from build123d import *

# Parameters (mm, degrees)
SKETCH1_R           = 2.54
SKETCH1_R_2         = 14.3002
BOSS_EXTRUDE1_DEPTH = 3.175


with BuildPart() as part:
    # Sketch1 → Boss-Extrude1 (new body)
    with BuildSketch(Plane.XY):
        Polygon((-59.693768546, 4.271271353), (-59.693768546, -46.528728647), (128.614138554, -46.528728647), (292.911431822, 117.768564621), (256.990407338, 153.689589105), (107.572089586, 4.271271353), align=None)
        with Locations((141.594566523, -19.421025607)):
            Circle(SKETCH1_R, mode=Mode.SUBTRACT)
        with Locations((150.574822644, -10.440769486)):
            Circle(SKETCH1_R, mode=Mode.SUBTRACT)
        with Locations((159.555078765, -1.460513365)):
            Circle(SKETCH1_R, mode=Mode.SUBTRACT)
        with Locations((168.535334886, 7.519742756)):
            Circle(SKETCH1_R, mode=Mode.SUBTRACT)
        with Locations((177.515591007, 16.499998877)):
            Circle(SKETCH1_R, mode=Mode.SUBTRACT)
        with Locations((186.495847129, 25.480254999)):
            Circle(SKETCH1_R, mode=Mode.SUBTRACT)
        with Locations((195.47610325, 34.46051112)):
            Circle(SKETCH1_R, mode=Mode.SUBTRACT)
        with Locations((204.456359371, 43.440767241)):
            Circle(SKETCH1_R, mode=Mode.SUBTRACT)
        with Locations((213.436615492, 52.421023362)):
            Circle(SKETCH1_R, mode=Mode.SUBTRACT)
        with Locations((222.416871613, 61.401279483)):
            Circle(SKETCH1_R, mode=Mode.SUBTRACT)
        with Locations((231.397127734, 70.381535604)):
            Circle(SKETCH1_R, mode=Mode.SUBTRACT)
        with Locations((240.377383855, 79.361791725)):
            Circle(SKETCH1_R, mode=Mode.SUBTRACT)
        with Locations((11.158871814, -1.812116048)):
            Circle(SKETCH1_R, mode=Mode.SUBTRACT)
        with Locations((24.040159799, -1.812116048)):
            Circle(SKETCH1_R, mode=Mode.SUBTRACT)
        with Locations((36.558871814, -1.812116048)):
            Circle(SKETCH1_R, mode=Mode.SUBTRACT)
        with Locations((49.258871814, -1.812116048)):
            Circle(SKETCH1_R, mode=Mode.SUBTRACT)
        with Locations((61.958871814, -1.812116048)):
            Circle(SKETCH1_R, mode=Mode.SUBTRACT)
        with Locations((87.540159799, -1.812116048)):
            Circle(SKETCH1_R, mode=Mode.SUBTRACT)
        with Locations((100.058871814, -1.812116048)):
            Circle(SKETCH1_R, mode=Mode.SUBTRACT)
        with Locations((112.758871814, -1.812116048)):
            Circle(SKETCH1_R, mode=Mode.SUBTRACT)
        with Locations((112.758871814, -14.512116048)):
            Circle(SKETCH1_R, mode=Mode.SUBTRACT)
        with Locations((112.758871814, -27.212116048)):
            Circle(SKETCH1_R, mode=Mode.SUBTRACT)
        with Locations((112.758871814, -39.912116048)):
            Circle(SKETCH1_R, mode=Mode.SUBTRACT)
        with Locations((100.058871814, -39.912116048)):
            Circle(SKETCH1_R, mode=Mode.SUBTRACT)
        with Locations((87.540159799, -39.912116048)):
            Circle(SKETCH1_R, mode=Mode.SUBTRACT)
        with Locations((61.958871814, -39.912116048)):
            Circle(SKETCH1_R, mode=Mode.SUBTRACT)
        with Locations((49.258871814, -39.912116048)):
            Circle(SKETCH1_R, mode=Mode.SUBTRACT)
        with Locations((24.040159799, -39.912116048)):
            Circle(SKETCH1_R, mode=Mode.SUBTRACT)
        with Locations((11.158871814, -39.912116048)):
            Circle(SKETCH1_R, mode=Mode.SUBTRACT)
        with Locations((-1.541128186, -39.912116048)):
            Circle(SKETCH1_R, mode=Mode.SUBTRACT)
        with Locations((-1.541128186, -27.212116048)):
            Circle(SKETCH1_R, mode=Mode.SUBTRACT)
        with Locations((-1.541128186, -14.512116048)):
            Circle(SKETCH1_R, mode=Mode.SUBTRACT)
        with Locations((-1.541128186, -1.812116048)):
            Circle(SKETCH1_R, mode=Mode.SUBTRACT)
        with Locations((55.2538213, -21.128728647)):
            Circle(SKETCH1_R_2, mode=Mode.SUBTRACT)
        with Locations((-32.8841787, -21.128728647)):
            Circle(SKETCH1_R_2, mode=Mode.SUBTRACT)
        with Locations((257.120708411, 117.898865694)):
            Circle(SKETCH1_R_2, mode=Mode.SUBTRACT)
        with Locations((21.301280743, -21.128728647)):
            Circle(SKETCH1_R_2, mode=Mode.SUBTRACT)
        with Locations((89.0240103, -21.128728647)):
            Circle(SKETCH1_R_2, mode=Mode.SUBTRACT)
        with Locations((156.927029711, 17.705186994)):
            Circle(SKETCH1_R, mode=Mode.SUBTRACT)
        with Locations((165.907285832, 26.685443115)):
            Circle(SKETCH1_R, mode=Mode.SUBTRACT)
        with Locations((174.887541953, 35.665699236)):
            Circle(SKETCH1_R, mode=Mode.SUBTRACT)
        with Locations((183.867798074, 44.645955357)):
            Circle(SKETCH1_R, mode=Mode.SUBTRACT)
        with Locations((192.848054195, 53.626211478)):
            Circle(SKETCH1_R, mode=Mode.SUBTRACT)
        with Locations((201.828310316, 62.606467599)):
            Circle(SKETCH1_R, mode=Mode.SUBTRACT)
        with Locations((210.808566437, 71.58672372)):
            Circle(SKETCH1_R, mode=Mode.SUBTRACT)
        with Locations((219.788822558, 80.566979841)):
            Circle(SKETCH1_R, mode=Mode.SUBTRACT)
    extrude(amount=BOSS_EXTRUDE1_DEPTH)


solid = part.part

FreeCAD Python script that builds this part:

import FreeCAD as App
import Part
import Sketcher

V = App.Vector
Q = App.Units.Quantity

doc = App.newDocument("Part")
body = doc.addObject("PartDesign::Body", "Body")

sketch1 = doc.addObject("Sketcher::SketchObject", "Sketch")
body.addObject(sketch1)
sketch1.AttachmentSupport = (doc.XY_Plane, [""])
sketch1.MapMode = "FlatFace"
sketch1.addGeometry(Part.LineSegment(V(-59.7, 4.3, 0), V(-59.7, -46.5, 0)), False)
sketch1.addGeometry(Part.LineSegment(V(-59.7, -46.5, 0), V(128.6, -46.5, 0)), False)
sketch1.addGeometry(Part.LineSegment(V(128.6, -46.5, 0), V(292.9, 117.8, 0)), False)
sketch1.addGeometry(Part.LineSegment(V(292.9, 117.8, 0), V(257, 153.7, 0)), False)
sketch1.addGeometry(Part.LineSegment(V(257, 153.7, 0), V(107.6, 4.3, 0)), False)
sketch1.addGeometry(Part.LineSegment(V(107.6, 4.3, 0), V(-59.7, 4.3, 0)), False)
sketch1.addGeometry(Part.Circle(V(-32.9, -21.1, 0), V(0, 0, 1), 14.3), False)
sketch1.addGeometry(Part.Circle(V(-1.5, -39.9, 0), V(0, 0, 1), 2.5), False)
sketch1.addGeometry(Part.Circle(V(11.2, -39.9, 0), V(0, 0, 1), 2.5), False)
sketch1.addGeometry(Part.Circle(V(24, -39.9, 0), V(0, 0, 1), 2.5), False)
sketch1.addGeometry(Part.Circle(V(-1.5, -27.2, 0), V(0, 0, 1), 2.5), False)
sketch1.addGeometry(Part.Circle(V(21.3, -21.1, 0), V(0, 0, 1), 14.3), False)
sketch1.addGeometry(Part.Circle(V(-1.5, -14.5, 0), V(0, 0, 1), 2.5), False)
sketch1.addGeometry(Part.Circle(V(-1.5, -1.8, 0), V(0, 0, 1), 2.5), False)
sketch1.addGeometry(Part.Circle(V(11.2, -1.8, 0), V(0, 0, 1), 2.5), False)
sketch1.addGeometry(Part.Circle(V(24, -1.8, 0), V(0, 0, 1), 2.5), False)
sketch1.addGeometry(Part.Circle(V(49.3, -39.9, 0), V(0, 0, 1), 2.5), False)
sketch1.addGeometry(Part.Circle(V(62, -39.9, 0), V(0, 0, 1), 2.5), False)
sketch1.addGeometry(Part.Circle(V(55.3, -21.1, 0), V(0, 0, 1), 14.3), False)
sketch1.addGeometry(Part.Circle(V(87.5, -39.9, 0), V(0, 0, 1), 2.5), False)
sketch1.addGeometry(Part.Circle(V(100.1, -39.9, 0), V(0, 0, 1), 2.5), False)
sketch1.addGeometry(Part.Circle(V(89, -21.1, 0), V(0, 0, 1), 14.3), False)
sketch1.addGeometry(Part.Circle(V(36.6, -1.8, 0), V(0, 0, 1), 2.5), False)
sketch1.addGeometry(Part.Circle(V(49.3, -1.8, 0), V(0, 0, 1), 2.5), False)
sketch1.addGeometry(Part.Circle(V(62, -1.8, 0), V(0, 0, 1), 2.5), False)
sketch1.addGeometry(Part.Circle(V(87.5, -1.8, 0), V(0, 0, 1), 2.5), False)
sketch1.addGeometry(Part.Circle(V(100.1, -1.8, 0), V(0, 0, 1), 2.5), False)
sketch1.addGeometry(Part.Circle(V(112.8, -39.9, 0), V(0, 0, 1), 2.5), False)
sketch1.addGeometry(Part.Circle(V(112.8, -27.2, 0), V(0, 0, 1), 2.5), False)
sketch1.addGeometry(Part.Circle(V(112.8, -14.5, 0), V(0, 0, 1), 2.5), False)
sketch1.addGeometry(Part.Circle(V(141.6, -19.4, 0), V(0, 0, 1), 2.5), False)
sketch1.addGeometry(Part.Circle(V(150.6, -10.4, 0), V(0, 0, 1), 2.5), False)
sketch1.addGeometry(Part.Circle(V(112.8, -1.8, 0), V(0, 0, 1), 2.5), False)
sketch1.addGeometry(Part.Circle(V(159.6, -1.5, 0), V(0, 0, 1), 2.5), False)
sketch1.addGeometry(Part.Circle(V(168.5, 7.5, 0), V(0, 0, 1), 2.5), False)
sketch1.addGeometry(Part.Circle(V(156.9, 17.7, 0), V(0, 0, 1), 2.5), False)
sketch1.addGeometry(Part.Circle(V(177.5, 16.5, 0), V(0, 0, 1), 2.5), False)
sketch1.addGeometry(Part.Circle(V(165.9, 26.7, 0), V(0, 0, 1), 2.5), False)
sketch1.addGeometry(Part.Circle(V(186.5, 25.5, 0), V(0, 0, 1), 2.5), False)
sketch1.addGeometry(Part.Circle(V(174.9, 35.7, 0), V(0, 0, 1), 2.5), False)
sketch1.addGeometry(Part.Circle(V(183.9, 44.6, 0), V(0, 0, 1), 2.5), False)
sketch1.addGeometry(Part.Circle(V(195.5, 34.5, 0), V(0, 0, 1), 2.5), False)
sketch1.addGeometry(Part.Circle(V(204.5, 43.4, 0), V(0, 0, 1), 2.5), False)
sketch1.addGeometry(Part.Circle(V(192.8, 53.6, 0), V(0, 0, 1), 2.5), False)
sketch1.addGeometry(Part.Circle(V(213.4, 52.4, 0), V(0, 0, 1), 2.5), False)
sketch1.addGeometry(Part.Circle(V(201.8, 62.6, 0), V(0, 0, 1), 2.5), False)
sketch1.addGeometry(Part.Circle(V(222.4, 61.4, 0), V(0, 0, 1), 2.5), False)
sketch1.addGeometry(Part.Circle(V(210.8, 71.6, 0), V(0, 0, 1), 2.5), False)
sketch1.addGeometry(Part.Circle(V(231.4, 70.4, 0), V(0, 0, 1), 2.5), False)
sketch1.addGeometry(Part.Circle(V(219.8, 80.6, 0), V(0, 0, 1), 2.5), False)
sketch1.addGeometry(Part.Circle(V(240.4, 79.4, 0), V(0, 0, 1), 2.5), False)
sketch1.addGeometry(Part.Circle(V(257.1, 117.9, 0), V(0, 0, 1), 14.3), False)
sketch1.addConstraint(Sketcher.Constraint("Coincident", 0, 2, 1, 1))
sketch1.addConstraint(Sketcher.Constraint("Coincident", 1, 2, 2, 1))
sketch1.addConstraint(Sketcher.Constraint("Coincident", 2, 2, 3, 1))
sketch1.addConstraint(Sketcher.Constraint("Coincident", 3, 2, 4, 1))
sketch1.addConstraint(Sketcher.Constraint("Coincident", 4, 2, 5, 1))
sketch1.addConstraint(Sketcher.Constraint("Coincident", 5, 2, 0, 1))
sketch1.addConstraint(Sketcher.Constraint("Vertical", 0))
sketch1.addConstraint(Sketcher.Constraint("Horizontal", 1))
sketch1.addConstraint(Sketcher.Constraint("Horizontal", 5))
sketch1.addConstraint(Sketcher.Constraint("Equal", 7, 8))
sketch1.addConstraint(Sketcher.Constraint("Equal", 8, 9))
sketch1.addConstraint(Sketcher.Constraint("Equal", 9, 10))
sketch1.addConstraint(Sketcher.Constraint("Equal", 6, 11))
sketch1.addConstraint(Sketcher.Constraint("Equal", 10, 12))
sketch1.addConstraint(Sketcher.Constraint("Equal", 12, 13))
sketch1.addConstraint(Sketcher.Constraint("Equal", 13, 14))
sketch1.addConstraint(Sketcher.Constraint("Equal", 14, 15))
sketch1.addConstraint(Sketcher.Constraint("Equal", 15, 16))
sketch1.addConstraint(Sketcher.Constraint("Equal", 16, 17))
sketch1.addConstraint(Sketcher.Constraint("Equal", 11, 18))
sketch1.addConstraint(Sketcher.Constraint("Equal", 17, 19))
sketch1.addConstraint(Sketcher.Constraint("Equal", 19, 20))
sketch1.addConstraint(Sketcher.Constraint("Equal", 18, 21))
sketch1.addConstraint(Sketcher.Constraint("Equal", 20, 22))
sketch1.addConstraint(Sketcher.Constraint("Equal", 22, 23))
sketch1.addConstraint(Sketcher.Constraint("Equal", 23, 24))
sketch1.addConstraint(Sketcher.Constraint("Equal", 24, 25))
sketch1.addConstraint(Sketcher.Constraint("Equal", 25, 26))
sketch1.addConstraint(Sketcher.Constraint("Equal", 26, 27))
sketch1.addConstraint(Sketcher.Constraint("Equal", 27, 28))
sketch1.addConstraint(Sketcher.Constraint("Equal", 28, 29))
sketch1.addConstraint(Sketcher.Constraint("Equal", 29, 30))
sketch1.addConstraint(Sketcher.Constraint("Equal", 30, 31))
sketch1.addConstraint(Sketcher.Constraint("Equal", 31, 32))
sketch1.addConstraint(Sketcher.Constraint("Equal", 32, 33))
sketch1.addConstraint(Sketcher.Constraint("Equal", 33, 34))
sketch1.addConstraint(Sketcher.Constraint("Equal", 34, 35))
sketch1.addConstraint(Sketcher.Constraint("Equal", 35, 36))
sketch1.addConstraint(Sketcher.Constraint("Equal", 36, 37))
sketch1.addConstraint(Sketcher.Constraint("Equal", 37, 38))
sketch1.addConstraint(Sketcher.Constraint("Equal", 38, 39))
sketch1.addConstraint(Sketcher.Constraint("Equal", 39, 40))
sketch1.addConstraint(Sketcher.Constraint("Equal", 40, 41))
sketch1.addConstraint(Sketcher.Constraint("Equal", 41, 42))
sketch1.addConstraint(Sketcher.Constraint("Equal", 42, 43))
sketch1.addConstraint(Sketcher.Constraint("Equal", 43, 44))
sketch1.addConstraint(Sketcher.Constraint("Equal", 44, 45))
sketch1.addConstraint(Sketcher.Constraint("Equal", 45, 46))
sketch1.addConstraint(Sketcher.Constraint("Equal", 46, 47))
sketch1.addConstraint(Sketcher.Constraint("Equal", 47, 48))
sketch1.addConstraint(Sketcher.Constraint("Equal", 48, 49))
sketch1.addConstraint(Sketcher.Constraint("Equal", 49, 50))
sketch1.addConstraint(Sketcher.Constraint("Equal", 21, 51))
sketch1.addConstraint(Sketcher.Constraint("Perpendicular", 2, 3))
sketch1.addConstraint(Sketcher.Constraint("Perpendicular", 3, 4))
sketch1.addConstraint(Sketcher.Constraint("Horizontal", 7, 3, 8, 3))
sketch1.addConstraint(Sketcher.Constraint("Horizontal", 8, 3, 9, 3))
sketch1.addConstraint(Sketcher.Constraint("Horizontal", 6, 3, 11, 3))
sketch1.addConstraint(Sketcher.Constraint("Horizontal", 13, 3, 14, 3))
sketch1.addConstraint(Sketcher.Constraint("Horizontal", 14, 3, 15, 3))
sketch1.addConstraint(Sketcher.Constraint("Horizontal", 9, 3, 16, 3))
sketch1.addConstraint(Sketcher.Constraint("Horizontal", 16, 3, 17, 3))
sketch1.addConstraint(Sketcher.Constraint("Horizontal", 11, 3, 18, 3))
sketch1.addConstraint(Sketcher.Constraint("Horizontal", 17, 3, 19, 3))
sketch1.addConstraint(Sketcher.Constraint("Horizontal", 19, 3, 20, 3))
sketch1.addConstraint(Sketcher.Constraint("Horizontal", 18, 3, 21, 3))
sketch1.addConstraint(Sketcher.Constraint("Horizontal", 15, 3, 22, 3))
sketch1.addConstraint(Sketcher.Constraint("Horizontal", 22, 3, 23, 3))
sketch1.addConstraint(Sketcher.Constraint("Horizontal", 23, 3, 24, 3))
sketch1.addConstraint(Sketcher.Constraint("Horizontal", 24, 3, 25, 3))
sketch1.addConstraint(Sketcher.Constraint("Horizontal", 25, 3, 26, 3))
sketch1.addConstraint(Sketcher.Constraint("Horizontal", 20, 3, 27, 3))
sketch1.addConstraint(Sketcher.Constraint("Horizontal", 10, 3, 28, 3))
sketch1.addConstraint(Sketcher.Constraint("Horizontal", 12, 3, 29, 3))
sketch1.addConstraint(Sketcher.Constraint("Horizontal", 26, 3, 32, 3))
sketch1.addConstraint(Sketcher.Constraint("Vertical", 7, 3, 10, 3))
sketch1.addConstraint(Sketcher.Constraint("Vertical", 10, 3, 12, 3))
sketch1.addConstraint(Sketcher.Constraint("Vertical", 12, 3, 13, 3))
sketch1.addConstraint(Sketcher.Constraint("Vertical", 8, 3, 14, 3))
sketch1.addConstraint(Sketcher.Constraint("Vertical", 9, 3, 15, 3))
sketch1.addConstraint(Sketcher.Constraint("Vertical", 16, 3, 23, 3))
sketch1.addConstraint(Sketcher.Constraint("Vertical", 17, 3, 24, 3))
sketch1.addConstraint(Sketcher.Constraint("Vertical", 19, 3, 25, 3))
sketch1.addConstraint(Sketcher.Constraint("Vertical", 20, 3, 26, 3))
sketch1.addConstraint(Sketcher.Constraint("Vertical", 27, 3, 28, 3))
sketch1.addConstraint(Sketcher.Constraint("Vertical", 28, 3, 29, 3))
sketch1.addConstraint(Sketcher.Constraint("Vertical", 29, 3, 32, 3))
sketch1.addConstraint(Sketcher.Constraint("Diameter", 7, Q("0.2 in")))
sketch1.addConstraint(Sketcher.Constraint("DistanceY", 0, 2, 0, 1, Q("2 in")))
sketch1.addConstraint(Sketcher.Constraint("Distance", 3, Q("2 in")))
sketch1.addConstraint(Sketcher.Constraint("Diameter", 6, Q("1.126 in")))
sketch1.addConstraint(Sketcher.Constraint("Angle", 2, Q("45 deg")))
sketch1.addConstraint(Sketcher.Constraint("DistanceY", 7, 3, 12, 3, Q("1 in")))
sketch1.addConstraint(Sketcher.Constraint("DistanceY", 10, 3, 13, 3, Q("1 in")))
sketch1.addConstraint(Sketcher.Constraint("DistanceX", 7, 3, 16, 3, Q("2 in")))
sketch1.addConstraint(Sketcher.Constraint("DistanceX", 8, 3, 17, 3, Q("2 in")))
sketch1.addConstraint(Sketcher.Constraint("DistanceX", 16, 3, 20, 3, Q("2 in")))
sketch1.addConstraint(Sketcher.Constraint("DistanceX", 14, 3, 22, 3, Q("1 in")))
sketch1.addConstraint(Sketcher.Constraint("DistanceY", 0, 2, 6, 3, Q("1 in")))
sketch1.addConstraint(Sketcher.Constraint("DistanceX", 7, 3, 8, 3, Q("0.5 in")))
sketch1.addConstraint(Sketcher.Constraint("DistanceY", 7, 3, 10, 3, Q("0.5 in")))
sketch1.addConstraint(Sketcher.Constraint("DistanceX", 9, 3, 19, 3, Q("2.5 in")))
sketch1.addConstraint(Sketcher.Constraint("DistanceX", 20, 3, 27, 3, Q("0.5 in")))
sketch1.addConstraint(Sketcher.Constraint("DistanceX", 5, 2, 5, 1, Q("167.265858 mm")))
sketch1.addConstraint(Sketcher.Constraint("DistanceY", -1, 1, 36, 3, Q("16.499999 mm")))
sketch1.addConstraint(Sketcher.Constraint("DistanceY", -1, 1, 39, 3, Q("35.665699 mm")))
sketch1.addConstraint(Sketcher.Constraint("DistanceX", -1, 1, 40, 3, Q("183.867798 mm")))
sketch1.addConstraint(Sketcher.Constraint("DistanceY", 33, 3, 35, 3, Q("19.1657 mm")))
sketch1.addConstraint(Sketcher.Constraint("DistanceY", 34, 3, 37, 3, Q("19.1657 mm")))
sketch1.addConstraint(Sketcher.Constraint("DistanceY", 38, 3, 40, 3, Q("19.1657 mm")))
sketch1.addConstraint(Sketcher.Constraint("DistanceY", 41, 3, 43, 3, Q("19.1657 mm")))
sketch1.addConstraint(Sketcher.Constraint("DistanceY", 42, 3, 45, 3, Q("19.1657 mm")))
sketch1.addConstraint(Sketcher.Constraint("DistanceY", 44, 3, 47, 3, Q("19.1657 mm")))
sketch1.addConstraint(Sketcher.Constraint("DistanceY", 46, 3, 49, 3, Q("19.1657 mm")))
sketch1.addConstraint(Sketcher.Constraint("DistanceY", 2, 2, 51, 3, Q("0.130301 mm")))
sketch1.addConstraint(Sketcher.Constraint("DistanceX", 3, 2, 51, 3, Q("0.130301 mm")))
sketch1.addConstraint(Sketcher.Constraint("Distance", 2, Q("232.35146 mm")))
sketch1.addConstraint(Sketcher.Constraint("DistanceX", 6, 3, -1, 1, Q("32.884179 mm")))
sketch1.addConstraint(Sketcher.Constraint("DistanceY", 6, 3, -1, 1, Q("21.128729 mm")))
sketch1.addConstraint(Sketcher.Constraint("DistanceX", 7, 3, -1, 1, Q("1.541128 mm")))
sketch1.addConstraint(Sketcher.Constraint("DistanceX", -1, 1, 9, 3, Q("24.04016 mm")))
sketch1.addConstraint(Sketcher.Constraint("DistanceX", -1, 1, 11, 3, Q("21.301281 mm")))
sketch1.addConstraint(Sketcher.Constraint("DistanceX", -1, 1, 18, 3, Q("55.253821 mm")))
sketch1.addConstraint(Sketcher.Constraint("DistanceX", -1, 1, 21, 3, Q("89.02401 mm")))
sketch1.addConstraint(Sketcher.Constraint("DistanceY", 31, 3, -1, 1, Q("10.440769 mm")))
sketch1.addConstraint(Sketcher.Constraint("DistanceX", -1, 1, 33, 3, Q("159.555079 mm")))
sketch1.addConstraint(Sketcher.Constraint("DistanceX", -1, 1, 35, 3, Q("156.92703 mm")))
sketch1.addConstraint(Sketcher.Constraint("DistanceX", -1, 1, 36, 3, Q("177.515591 mm")))
sketch1.addConstraint(Sketcher.Constraint("DistanceX", -1, 1, 39, 3, Q("174.887542 mm")))
sketch1.addConstraint(Sketcher.Constraint("DistanceY", -1, 1, 41, 3, Q("34.460511 mm")))
sketch1.addConstraint(Sketcher.Constraint("DistanceX", -1, 1, 42, 3, Q("204.456359 mm")))
sketch1.addConstraint(Sketcher.Constraint("DistanceX", -1, 1, 45, 3, Q("201.82831 mm")))
sketch1.addConstraint(Sketcher.Constraint("DistanceX", -1, 1, 46, 3, Q("222.416872 mm")))
sketch1.addConstraint(Sketcher.Constraint("DistanceY", -1, 1, 46, 3, Q("61.401279 mm")))
sketch1.addConstraint(Sketcher.Constraint("DistanceY", -1, 1, 50, 3, Q("79.361792 mm")))
sketch1.addConstraint(Sketcher.Constraint("DistanceX", -1, 1, 51, 3, Q("257.120708 mm")))
sketch1.addConstraint(Sketcher.Constraint("DistanceY", 30, 3, 29, 3, Q("4.90891 mm")))
sketch1.addConstraint(Sketcher.Constraint("DistanceX", 29, 3, 31, 3, Q("37.815951 mm")))
sketch1.addConstraint(Sketcher.Constraint("DistanceX", 30, 3, 34, 3, Q("26.940768 mm")))
sketch1.addConstraint(Sketcher.Constraint("DistanceY", 30, 3, 34, 3, Q("26.940768 mm")))
sketch1.addConstraint(Sketcher.Constraint("DistanceY", 36, 3, 35, 3, Q("1.205188 mm")))
sketch1.addConstraint(Sketcher.Constraint("DistanceX", 37, 3, 34, 3, Q("2.628049 mm")))
sketch1.addConstraint(Sketcher.Constraint("DistanceX", 37, 3, 38, 3, Q("20.588561 mm")))
sketch1.addConstraint(Sketcher.Constraint("DistanceY", 38, 3, 37, 3, Q("1.205188 mm")))
sketch1.addConstraint(Sketcher.Constraint("DistanceY", 35, 3, 38, 3, Q("7.775068 mm")))
sketch1.addConstraint(Sketcher.Constraint("DistanceX", 33, 3, 38, 3, Q("26.940768 mm")))
sketch1.addConstraint(Sketcher.Constraint("DistanceX", 39, 3, 41, 3, Q("20.588561 mm")))
sketch1.addConstraint(Sketcher.Constraint("DistanceY", 42, 3, 40, 3, Q("1.205188 mm")))
sketch1.addConstraint(Sketcher.Constraint("DistanceX", 43, 3, 41, 3, Q("2.628049 mm")))
sketch1.addConstraint(Sketcher.Constraint("DistanceX", 43, 3, 44, 3, Q("20.588561 mm")))
sketch1.addConstraint(Sketcher.Constraint("DistanceY", 44, 3, 43, 3, Q("1.205188 mm")))
sketch1.addConstraint(Sketcher.Constraint("DistanceX", 47, 3, 44, 3, Q("2.628049 mm")))
sketch1.addConstraint(Sketcher.Constraint("DistanceX", 47, 3, 48, 3, Q("20.588561 mm")))
sketch1.addConstraint(Sketcher.Constraint("DistanceY", 48, 3, 47, 3, Q("1.205188 mm")))
sketch1.addConstraint(Sketcher.Constraint("DistanceX", 49, 3, 46, 3, Q("2.628049 mm")))
sketch1.addConstraint(Sketcher.Constraint("DistanceX", 49, 3, 50, 3, Q("20.588561 mm")))
pad1 = doc.addObject("PartDesign::Pad", "Pad")
body.addObject(pad1)
pad1.Profile = sketch1
pad1.Length = Q("0.125 in")

doc.recompute()
